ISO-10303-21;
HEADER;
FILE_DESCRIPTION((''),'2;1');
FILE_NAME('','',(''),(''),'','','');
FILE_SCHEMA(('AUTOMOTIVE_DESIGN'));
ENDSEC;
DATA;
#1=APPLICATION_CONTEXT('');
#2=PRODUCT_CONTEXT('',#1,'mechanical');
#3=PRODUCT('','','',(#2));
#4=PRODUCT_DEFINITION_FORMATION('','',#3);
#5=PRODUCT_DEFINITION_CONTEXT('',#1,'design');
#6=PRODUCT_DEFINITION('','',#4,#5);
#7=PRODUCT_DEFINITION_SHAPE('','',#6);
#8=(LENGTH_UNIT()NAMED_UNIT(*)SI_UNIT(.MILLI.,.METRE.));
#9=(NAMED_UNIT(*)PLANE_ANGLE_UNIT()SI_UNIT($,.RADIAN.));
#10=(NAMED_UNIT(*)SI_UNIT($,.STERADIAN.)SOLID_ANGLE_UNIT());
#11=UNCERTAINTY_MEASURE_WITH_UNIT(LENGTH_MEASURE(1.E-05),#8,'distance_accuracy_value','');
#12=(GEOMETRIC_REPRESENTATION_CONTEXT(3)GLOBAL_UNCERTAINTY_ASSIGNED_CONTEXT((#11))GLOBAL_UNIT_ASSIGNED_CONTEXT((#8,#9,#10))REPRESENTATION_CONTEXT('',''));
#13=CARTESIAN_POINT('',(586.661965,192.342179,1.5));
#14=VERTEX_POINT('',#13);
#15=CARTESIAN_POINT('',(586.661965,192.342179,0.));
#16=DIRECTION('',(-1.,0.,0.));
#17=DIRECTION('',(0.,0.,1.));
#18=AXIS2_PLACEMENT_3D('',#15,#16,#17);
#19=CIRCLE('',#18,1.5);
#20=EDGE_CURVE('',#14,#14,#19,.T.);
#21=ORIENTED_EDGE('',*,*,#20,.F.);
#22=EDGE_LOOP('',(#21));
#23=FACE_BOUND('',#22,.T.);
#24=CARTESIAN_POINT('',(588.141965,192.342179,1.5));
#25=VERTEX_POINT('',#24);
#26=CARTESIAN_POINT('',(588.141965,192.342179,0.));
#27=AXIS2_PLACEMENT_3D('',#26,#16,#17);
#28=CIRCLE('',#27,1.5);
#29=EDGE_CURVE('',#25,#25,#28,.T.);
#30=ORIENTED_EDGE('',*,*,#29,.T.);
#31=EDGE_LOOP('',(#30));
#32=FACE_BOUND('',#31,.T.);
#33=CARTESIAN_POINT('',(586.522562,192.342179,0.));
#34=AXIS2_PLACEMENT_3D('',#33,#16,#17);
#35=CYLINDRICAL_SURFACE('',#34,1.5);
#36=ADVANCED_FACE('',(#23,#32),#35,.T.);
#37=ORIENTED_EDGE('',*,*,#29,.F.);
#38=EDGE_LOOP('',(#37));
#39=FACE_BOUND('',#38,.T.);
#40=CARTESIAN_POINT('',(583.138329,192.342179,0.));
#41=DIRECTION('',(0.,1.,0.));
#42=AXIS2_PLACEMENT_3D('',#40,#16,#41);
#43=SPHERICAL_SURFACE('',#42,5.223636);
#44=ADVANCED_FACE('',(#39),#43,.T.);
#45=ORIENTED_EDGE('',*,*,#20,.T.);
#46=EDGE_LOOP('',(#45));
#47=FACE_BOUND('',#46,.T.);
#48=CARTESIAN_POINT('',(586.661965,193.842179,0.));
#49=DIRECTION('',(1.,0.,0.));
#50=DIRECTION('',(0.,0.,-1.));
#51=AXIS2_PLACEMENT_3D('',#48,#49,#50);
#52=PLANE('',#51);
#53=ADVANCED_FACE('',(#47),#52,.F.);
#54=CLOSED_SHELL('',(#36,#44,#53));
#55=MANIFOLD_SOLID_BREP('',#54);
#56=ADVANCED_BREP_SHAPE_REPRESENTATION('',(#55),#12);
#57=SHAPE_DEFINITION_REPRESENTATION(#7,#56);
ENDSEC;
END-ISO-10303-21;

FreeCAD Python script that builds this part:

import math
import FreeCAD as App
import Part
import Sketcher

V = App.Vector
Q = App.Units.Quantity

doc = App.newDocument("Part")
body = doc.addObject("PartDesign::Body", "Body")

sketch1 = body.newObject("Sketcher::SketchObject", "Sketch")
sketch1.AttachmentSupport = (doc.getObject("XY_Plane"), [""])
sketch1.MapMode = "FlatFace"
sketch1.addGeometry(Part.LineSegment(V(588.1, 193.8, 0), V(586.7, 193.8, 0)), False)
sketch1.addGeometry(Part.LineSegment(V(586.7, 193.8, 0), V(586.7, 192.3, 0)), False)
sketch1.addGeometry(Part.LineSegment(V(586.7, 192.3, 0), V(588.4, 192.3, 0)), False)
sketch1.addGeometry(Part.ArcOfCircle(Part.Circle(V(583.1, 192.3, 0), V(0, 0, 1), 5.2), math.radians(0), math.radians(16.69)), False)
sketch1.addGeometry(Part.LineSegment(V(583.1, 192.3, 0), V(588.4, 192.3, 0)), True)
sketch1.addConstraint(Sketcher.Constraint("Coincident", 0, 2, 1, 1))
sketch1.addConstraint(Sketcher.Constraint("Coincident", 1, 2, 2, 1))
sketch1.addConstraint(Sketcher.Constraint("Coincident", 2, 2, 3, 1))
sketch1.addConstraint(Sketcher.Constraint("Coincident", 3, 2, 0, 1))
sketch1.addConstraint(Sketcher.Constraint("Horizontal", 0))
sketch1.addConstraint(Sketcher.Constraint("Vertical", 1))
sketch1.addConstraint(Sketcher.Constraint("Horizontal", 2))
sketch1.addConstraint(Sketcher.Constraint("Horizontal", 4))
sketch1.addConstraint(Sketcher.Constraint("Coincident", 4, 1, 3, 3))
sketch1.addConstraint(Sketcher.Constraint("Coincident", 4, 2, 2, 2))
sketch1.addConstraint(Sketcher.Constraint("DistanceX", 2, 1, 2, 2, Q("1.7 mm")))
sketch1.addConstraint(Sketcher.Constraint("DistanceY", 1, 2, 1, 1, Q("1.5 mm")))
sketch1.addConstraint(Sketcher.Constraint("DistanceX", 0, 2, 0, 1, Q("1.48 mm")))
sketch1.addConstraint(Sketcher.Constraint("DistanceX", -1, 1, 3, 3, Q("583.138329 mm")))
sketch1.addConstraint(Sketcher.Constraint("DistanceY", -1, 1, 3, 3, Q("192.342179 mm")))
revolution = body.newObject("PartDesign::Revolution", "Revolution")
revolution.Profile = sketch1
revolution.ReferenceAxis = (sketch1, ["Axis0"])
revolution.Angle = 360

doc.recompute()
